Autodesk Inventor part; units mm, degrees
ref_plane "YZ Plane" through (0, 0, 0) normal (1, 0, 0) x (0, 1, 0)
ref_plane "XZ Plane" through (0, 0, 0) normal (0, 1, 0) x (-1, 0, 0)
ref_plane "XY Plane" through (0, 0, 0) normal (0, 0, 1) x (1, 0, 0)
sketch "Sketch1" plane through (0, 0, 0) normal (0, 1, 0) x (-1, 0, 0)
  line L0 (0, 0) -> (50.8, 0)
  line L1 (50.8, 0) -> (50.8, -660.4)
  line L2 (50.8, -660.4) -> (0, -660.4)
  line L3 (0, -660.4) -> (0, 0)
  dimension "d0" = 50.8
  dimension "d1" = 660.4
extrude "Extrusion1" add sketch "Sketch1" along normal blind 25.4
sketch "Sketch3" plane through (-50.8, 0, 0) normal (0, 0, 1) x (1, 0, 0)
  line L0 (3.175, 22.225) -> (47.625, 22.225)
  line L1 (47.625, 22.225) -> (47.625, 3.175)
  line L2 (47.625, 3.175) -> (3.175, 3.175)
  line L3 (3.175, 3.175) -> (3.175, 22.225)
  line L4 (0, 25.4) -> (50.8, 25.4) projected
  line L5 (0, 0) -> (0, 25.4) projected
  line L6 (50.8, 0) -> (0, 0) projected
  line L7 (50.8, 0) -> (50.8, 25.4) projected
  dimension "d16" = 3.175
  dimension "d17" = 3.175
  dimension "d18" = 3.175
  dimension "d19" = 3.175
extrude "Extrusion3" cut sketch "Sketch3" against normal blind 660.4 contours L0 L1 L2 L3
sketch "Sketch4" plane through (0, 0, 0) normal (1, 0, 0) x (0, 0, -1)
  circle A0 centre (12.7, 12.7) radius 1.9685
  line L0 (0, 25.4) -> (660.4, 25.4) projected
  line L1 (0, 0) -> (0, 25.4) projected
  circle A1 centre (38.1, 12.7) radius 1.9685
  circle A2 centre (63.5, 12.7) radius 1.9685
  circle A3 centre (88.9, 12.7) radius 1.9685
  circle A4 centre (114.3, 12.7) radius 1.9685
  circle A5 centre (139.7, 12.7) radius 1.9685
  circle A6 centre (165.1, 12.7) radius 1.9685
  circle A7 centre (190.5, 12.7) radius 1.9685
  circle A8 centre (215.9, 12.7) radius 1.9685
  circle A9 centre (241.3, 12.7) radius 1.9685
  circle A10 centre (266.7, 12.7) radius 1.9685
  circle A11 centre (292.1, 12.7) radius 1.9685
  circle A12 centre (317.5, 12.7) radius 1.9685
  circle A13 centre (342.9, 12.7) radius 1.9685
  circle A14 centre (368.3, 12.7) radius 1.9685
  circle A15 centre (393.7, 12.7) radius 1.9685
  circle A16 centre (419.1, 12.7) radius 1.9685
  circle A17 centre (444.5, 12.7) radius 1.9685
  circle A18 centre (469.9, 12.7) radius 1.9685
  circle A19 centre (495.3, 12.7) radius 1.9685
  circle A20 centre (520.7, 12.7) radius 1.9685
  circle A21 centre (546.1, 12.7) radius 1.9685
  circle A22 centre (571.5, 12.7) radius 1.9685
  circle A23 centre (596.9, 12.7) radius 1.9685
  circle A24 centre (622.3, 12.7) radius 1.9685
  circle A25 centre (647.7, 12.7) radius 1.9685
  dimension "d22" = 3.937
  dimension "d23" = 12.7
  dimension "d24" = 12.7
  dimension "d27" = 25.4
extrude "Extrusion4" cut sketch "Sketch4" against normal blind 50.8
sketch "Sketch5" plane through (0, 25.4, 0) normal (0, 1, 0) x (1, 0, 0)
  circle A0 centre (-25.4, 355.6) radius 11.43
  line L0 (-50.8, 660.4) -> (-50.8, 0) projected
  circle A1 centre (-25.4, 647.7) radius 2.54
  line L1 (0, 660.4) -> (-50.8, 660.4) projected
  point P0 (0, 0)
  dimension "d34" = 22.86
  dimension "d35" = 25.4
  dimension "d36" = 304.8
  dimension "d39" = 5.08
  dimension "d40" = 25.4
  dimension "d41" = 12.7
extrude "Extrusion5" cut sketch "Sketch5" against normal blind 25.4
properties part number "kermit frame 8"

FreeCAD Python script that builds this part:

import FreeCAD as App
import Part
import Sketcher
from FreeCAD import Vector
Q = App.Units.Quantity


def add_polygon(sketch, points):
    """Adds a closed chain of lines whose ends are joined by coincident constraints."""
    first, n = sketch.GeometryCount, len(points)
    for a, b in zip(points, points[1:] + points[:1]):
        sketch.addGeometry(Part.LineSegment(App.Vector(*a, 0), App.Vector(*b, 0)), False)
    for i in range(n):
        sketch.addConstraint(Sketcher.Constraint("Coincident", first + i, 2, first + (i + 1) % n, 1))

doc = App.newDocument("Part")
body = doc.addObject("PartDesign::Body", "Body")

# Sketch on XZ plane
sketch1 = doc.addObject("Sketcher::SketchObject", "Sketch")
body.addObject(sketch1)
sketch1.AttachmentSupport = (doc.XZ_Plane, [""])
sketch1.MapMode = "FlatFace"
add_polygon(sketch1, [(-51, 0), (0, 0), (0, -660), (-51, -660)])  # lines 0-3
sketch1.addConstraint([
    Sketcher.Constraint("Horizontal", 0),
    Sketcher.Constraint("Vertical", 1),
    Sketcher.Constraint("Horizontal", 2),
    Sketcher.Constraint("Vertical", 3),
    Sketcher.Constraint("Coincident", 0, 2, -1, 1),
    Sketcher.Constraint("DistanceX", 0, 1, 0, 2, Q("2 in")),
    Sketcher.Constraint("DistanceY", 1, 2, 1, 1, Q("26 in")),
])
pad1 = doc.addObject("PartDesign::Pad", "Pad")
body.addObject(pad1)
pad1.Profile = sketch1
pad1.Length = Q("1 in")
pad1.Reversed = True

# Sketch on XY plane
sketch2 = doc.addObject("Sketcher::SketchObject", "Sketch001")
body.addObject(sketch2)
sketch2.AttachmentSupport = (doc.XY_Plane, [""])
sketch2.MapMode = "FlatFace"
add_polygon(sketch2, [(-3, 22), (-48, 22), (-48, 3), (-3, 3)])  # lines 0-3
sketch2.addConstraint([
    Sketcher.Constraint("Horizontal", 0),
    Sketcher.Constraint("Vertical", 1),
    Sketcher.Constraint("Horizontal", 2),
    Sketcher.Constraint("Vertical", 3),
    Sketcher.Constraint("DistanceY", -1, 1, 1, 2, Q("0.125 in")),
    Sketcher.Constraint("DistanceX", 2, 2, -1, 1, Q("0.125 in")),
    Sketcher.Constraint("DistanceX", 0, 2, 0, 1, Q("1.75 in")),
    Sketcher.Constraint("DistanceY", 1, 2, 1, 1, Q("0.75 in")),
])
pocket1 = doc.addObject("PartDesign::Pocket", "Pocket")
body.addObject(pocket1)
pocket1.Profile = sketch2
pocket1.Length = Q("26 in")

# Sketch on YZ plane
sketch3 = doc.addObject("Sketcher::SketchObject", "Sketch002")
body.addObject(sketch3)
sketch3.AttachmentSupport = (doc.YZ_Plane, [""])
sketch3.MapMode = "FlatFace"
sketch3.addGeometry([
    Part.Circle(Vector(12.7, -12.7, 0), Vector(0, 0, 1), 2),  # 0
    Part.Circle(Vector(12.7, -38.1, 0), Vector(0, 0, 1), 2),  # 1
    Part.Circle(Vector(12.7, -63.5, 0), Vector(0, 0, 1), 2),  # 2
    Part.Circle(Vector(12.7, -88.9, 0), Vector(0, 0, 1), 2),  # 3
    Part.Circle(Vector(12.7, -114.3, 0), Vector(0, 0, 1), 2),  # 4
    Part.Circle(Vector(12.7, -139.7, 0), Vector(0, 0, 1), 2),  # 5
    Part.Circle(Vector(12.7, -165.1, 0), Vector(0, 0, 1), 2),  # 6
    Part.Circle(Vector(12.7, -190.5, 0), Vector(0, 0, 1), 2),  # 7
    Part.Circle(Vector(12.7, -215.9, 0), Vector(0, 0, 1), 2),  # 8
    Part.Circle(Vector(12.7, -241.3, 0), Vector(0, 0, 1), 2),  # 9
    Part.Circle(Vector(12.7, -266.7, 0), Vector(0, 0, 1), 2),  # 10
    Part.Circle(Vector(12.7, -292.1, 0), Vector(0, 0, 1), 2),  # 11
    Part.Circle(Vector(12.7, -317.5, 0), Vector(0, 0, 1), 2),  # 12
    Part.Circle(Vector(12.7, -342.9, 0), Vector(0, 0, 1), 2),  # 13
    Part.Circle(Vector(12.7, -368.3, 0), Vector(0, 0, 1), 2),  # 14
    Part.Circle(Vector(12.7, -393.7, 0), Vector(0, 0, 1), 2),  # 15
    Part.Circle(Vector(12.7, -419.1, 0), Vector(0, 0, 1), 2),  # 16
    Part.Circle(Vector(12.7, -444.5, 0), Vector(0, 0, 1), 2),  # 17
    Part.Circle(Vector(12.7, -469.9, 0), Vector(0, 0, 1), 2),  # 18
    Part.Circle(Vector(12.7, -495.3, 0), Vector(0, 0, 1), 2),  # 19
    Part.Circle(Vector(12.7, -520.7, 0), Vector(0, 0, 1), 2),  # 20
    Part.Circle(Vector(12.7, -546.1, 0), Vector(0, 0, 1), 2),  # 21
    Part.Circle(Vector(12.7, -571.5, 0), Vector(0, 0, 1), 2),  # 22
    Part.Circle(Vector(12.7, -596.9, 0), Vector(0, 0, 1), 2),  # 23
    Part.Circle(Vector(12.7, -622.3, 0), Vector(0, 0, 1), 2),  # 24
    Part.Circle(Vector(12.7, -647.7, 0), Vector(0, 0, 1), 2),  # 25
], False)
sketch3.addConstraint([
    Sketcher.Constraint("Equal", 0, 1),
    Sketcher.Constraint("Equal", 1, 2),
    Sketcher.Constraint("Equal", 2, 3),
    Sketcher.Constraint("Equal", 3, 4),
    Sketcher.Constraint("Equal", 4, 5),
    Sketcher.Constraint("Equal", 5, 6),
    Sketcher.Constraint("Equal", 6, 7),
    Sketcher.Constraint("Equal", 7, 8),
    Sketcher.Constraint("Equal", 8, 9),
    Sketcher.Constraint("Equal", 9, 10),
    Sketcher.Constraint("Equal", 10, 11),
    Sketcher.Constraint("Equal", 11, 12),
    Sketcher.Constraint("Equal", 12, 13),
    Sketcher.Constraint("Equal", 13, 14),
    Sketcher.Constraint("Equal", 14, 15),
    Sketcher.Constraint("Equal", 15, 16),
    Sketcher.Constraint("Equal", 16, 17),
    Sketcher.Constraint("Equal", 17, 18),
    Sketcher.Constraint("Equal", 18, 19),
    Sketcher.Constraint("Equal", 19, 20),
    Sketcher.Constraint("Equal", 20, 21),
    Sketcher.Constraint("Equal", 21, 22),
    Sketcher.Constraint("Equal", 22, 23),
    Sketcher.Constraint("Equal", 23, 24),
    Sketcher.Constraint("Equal", 24, 25),
    Sketcher.Constraint("Vertical", 0, 3, 1, 3),
    Sketcher.Constraint("Vertical", 1, 3, 2, 3),
    Sketcher.Constraint("Vertical", 2, 3, 3, 3),
    Sketcher.Constraint("Vertical", 3, 3, 4, 3),
    Sketcher.Constraint("Vertical", 4, 3, 5, 3),
    Sketcher.Constraint("Vertical", 5, 3, 6, 3),
    Sketcher.Constraint("Vertical", 6, 3, 7, 3),
    Sketcher.Constraint("Vertical", 7, 3, 8, 3),
    Sketcher.Constraint("Vertical", 8, 3, 9, 3),
    Sketcher.Constraint("Vertical", 9, 3, 10, 3),
    Sketcher.Constraint("Vertical", 10, 3, 11, 3),
    Sketcher.Constraint("Vertical", 11, 3, 12, 3),
    Sketcher.Constraint("Vertical", 12, 3, 13, 3),
    Sketcher.Constraint("Vertical", 13, 3, 14, 3),
    Sketcher.Constraint("Vertical", 14, 3, 15, 3),
    Sketcher.Constraint("Vertical", 15, 3, 16, 3),
    Sketcher.Constraint("Vertical", 16, 3, 17, 3),
    Sketcher.Constraint("Vertical", 17, 3, 18, 3),
    Sketcher.Constraint("Vertical", 18, 3, 19, 3),
    Sketcher.Constraint("Vertical", 19, 3, 20, 3),
    Sketcher.Constraint("Vertical", 20, 3, 21, 3),
    Sketcher.Constraint("Vertical", 21, 3, 22, 3),
    Sketcher.Constraint("Vertical", 22, 3, 23, 3),
    Sketcher.Constraint("Vertical", 23, 3, 24, 3),
    Sketcher.Constraint("Vertical", 24, 3, 25, 3),
    Sketcher.Constraint("Diameter", 0, Q("0.155 in")),
    Sketcher.Constraint("DistanceY", 1, 3, 0, 3, Q("1 in")),
    Sketcher.Constraint("DistanceY", 2, 3, 1, 3, Q("1 in")),
    Sketcher.Constraint("DistanceY", 3, 3, 2, 3, Q("1 in")),
    Sketcher.Constraint("DistanceY", 4, 3, 3, 3, Q("1 in")),
    Sketcher.Constraint("DistanceY", 5, 3, 4, 3, Q("1 in")),
    Sketcher.Constraint("DistanceY", 6, 3, 5, 3, Q("1 in")),
    Sketcher.Constraint("DistanceY", 7, 3, 6, 3, Q("1 in")),
    Sketcher.Constraint("DistanceY", 8, 3, 7, 3, Q("1 in")),
    Sketcher.Constraint("DistanceY", 9, 3, 8, 3, Q("1 in")),
    Sketcher.Constraint("DistanceY", 10, 3, 9, 3, Q("1 in")),
    Sketcher.Constraint("DistanceY", 11, 3, 10, 3, Q("1 in")),
    Sketcher.Constraint("DistanceY", 12, 3, 11, 3, Q("1 in")),
    Sketcher.Constraint("DistanceY", 13, 3, 12, 3, Q("1 in")),
    Sketcher.Constraint("DistanceY", 14, 3, 13, 3, Q("1 in")),
    Sketcher.Constraint("DistanceY", 15, 3, 14, 3, Q("1 in")),
    Sketcher.Constraint("DistanceY", 16, 3, 15, 3, Q("1 in")),
    Sketcher.Constraint("DistanceY", 17, 3, 16, 3, Q("1 in")),
    Sketcher.Constraint("DistanceY", 18, 3, 17, 3, Q("1 in")),
    Sketcher.Constraint("DistanceY", 19, 3, 18, 3, Q("1 in")),
    Sketcher.Constraint("DistanceY", 20, 3, 19, 3, Q("1 in")),
    Sketcher.Constraint("DistanceY", 21, 3, 20, 3, Q("1 in")),
    Sketcher.Constraint("DistanceY", 22, 3, 21, 3, Q("1 in")),
    Sketcher.Constraint("DistanceY", 23, 3, 22, 3, Q("1 in")),
    Sketcher.Constraint("DistanceY", 24, 3, 23, 3, Q("1 in")),
    Sketcher.Constraint("DistanceY", 25, 3, 24, 3, Q("1 in")),
    Sketcher.Constraint("DistanceX", -1, 1, 0, 3, Q("0.5 in")),
    Sketcher.Constraint("DistanceY", 0, 3, -1, 1, Q("0.5 in")),
])
pocket2 = doc.addObject("PartDesign::Pocket", "Pocket001")
body.addObject(pocket2)
pocket2.Profile = sketch3
pocket2.Length = Q("2 in")

# Sketch on XZ plane
sketch4 = doc.addObject("Sketcher::SketchObject", "Sketch003")
body.addObject(sketch4)
sketch4.AttachmentSupport = (doc.XZ_Plane, [""])
sketch4.MapMode = "FlatFace"
sketch4.AttachmentOffset = App.Placement(Vector(0, 0, -1 * 25.4), App.Rotation())
sketch4.addGeometry([
    Part.Circle(Vector(-25.4, -355.6, 0), Vector(0, 0, 1), 11.4),
    Part.Circle(Vector(-25.4, -647.7, 0), Vector(0, 0, 1), 2.5),
], False)
sketch4.addConstraint([
    Sketcher.Constraint("Vertical", 0, 3, 1, 3),
    Sketcher.Constraint("Diameter", 0, Q("0.9 in")),
    Sketcher.Constraint("Diameter", 1, Q("0.2 in")),
    Sketcher.Constraint("DistanceX", 0, 3, -1, 1, Q("1 in")),
    Sketcher.Constraint("DistanceY", 0, 3, -1, 1, Q("14 in")),
    Sketcher.Constraint("DistanceY", 1, 3, -1, 1, Q("25.5 in")),
])
pocket3 = doc.addObject("PartDesign::Pocket", "Pocket002")
body.addObject(pocket3)
pocket3.Profile = sketch4
pocket3.Length = Q("1 in")
pocket3.Reversed = True

doc.recompute()
